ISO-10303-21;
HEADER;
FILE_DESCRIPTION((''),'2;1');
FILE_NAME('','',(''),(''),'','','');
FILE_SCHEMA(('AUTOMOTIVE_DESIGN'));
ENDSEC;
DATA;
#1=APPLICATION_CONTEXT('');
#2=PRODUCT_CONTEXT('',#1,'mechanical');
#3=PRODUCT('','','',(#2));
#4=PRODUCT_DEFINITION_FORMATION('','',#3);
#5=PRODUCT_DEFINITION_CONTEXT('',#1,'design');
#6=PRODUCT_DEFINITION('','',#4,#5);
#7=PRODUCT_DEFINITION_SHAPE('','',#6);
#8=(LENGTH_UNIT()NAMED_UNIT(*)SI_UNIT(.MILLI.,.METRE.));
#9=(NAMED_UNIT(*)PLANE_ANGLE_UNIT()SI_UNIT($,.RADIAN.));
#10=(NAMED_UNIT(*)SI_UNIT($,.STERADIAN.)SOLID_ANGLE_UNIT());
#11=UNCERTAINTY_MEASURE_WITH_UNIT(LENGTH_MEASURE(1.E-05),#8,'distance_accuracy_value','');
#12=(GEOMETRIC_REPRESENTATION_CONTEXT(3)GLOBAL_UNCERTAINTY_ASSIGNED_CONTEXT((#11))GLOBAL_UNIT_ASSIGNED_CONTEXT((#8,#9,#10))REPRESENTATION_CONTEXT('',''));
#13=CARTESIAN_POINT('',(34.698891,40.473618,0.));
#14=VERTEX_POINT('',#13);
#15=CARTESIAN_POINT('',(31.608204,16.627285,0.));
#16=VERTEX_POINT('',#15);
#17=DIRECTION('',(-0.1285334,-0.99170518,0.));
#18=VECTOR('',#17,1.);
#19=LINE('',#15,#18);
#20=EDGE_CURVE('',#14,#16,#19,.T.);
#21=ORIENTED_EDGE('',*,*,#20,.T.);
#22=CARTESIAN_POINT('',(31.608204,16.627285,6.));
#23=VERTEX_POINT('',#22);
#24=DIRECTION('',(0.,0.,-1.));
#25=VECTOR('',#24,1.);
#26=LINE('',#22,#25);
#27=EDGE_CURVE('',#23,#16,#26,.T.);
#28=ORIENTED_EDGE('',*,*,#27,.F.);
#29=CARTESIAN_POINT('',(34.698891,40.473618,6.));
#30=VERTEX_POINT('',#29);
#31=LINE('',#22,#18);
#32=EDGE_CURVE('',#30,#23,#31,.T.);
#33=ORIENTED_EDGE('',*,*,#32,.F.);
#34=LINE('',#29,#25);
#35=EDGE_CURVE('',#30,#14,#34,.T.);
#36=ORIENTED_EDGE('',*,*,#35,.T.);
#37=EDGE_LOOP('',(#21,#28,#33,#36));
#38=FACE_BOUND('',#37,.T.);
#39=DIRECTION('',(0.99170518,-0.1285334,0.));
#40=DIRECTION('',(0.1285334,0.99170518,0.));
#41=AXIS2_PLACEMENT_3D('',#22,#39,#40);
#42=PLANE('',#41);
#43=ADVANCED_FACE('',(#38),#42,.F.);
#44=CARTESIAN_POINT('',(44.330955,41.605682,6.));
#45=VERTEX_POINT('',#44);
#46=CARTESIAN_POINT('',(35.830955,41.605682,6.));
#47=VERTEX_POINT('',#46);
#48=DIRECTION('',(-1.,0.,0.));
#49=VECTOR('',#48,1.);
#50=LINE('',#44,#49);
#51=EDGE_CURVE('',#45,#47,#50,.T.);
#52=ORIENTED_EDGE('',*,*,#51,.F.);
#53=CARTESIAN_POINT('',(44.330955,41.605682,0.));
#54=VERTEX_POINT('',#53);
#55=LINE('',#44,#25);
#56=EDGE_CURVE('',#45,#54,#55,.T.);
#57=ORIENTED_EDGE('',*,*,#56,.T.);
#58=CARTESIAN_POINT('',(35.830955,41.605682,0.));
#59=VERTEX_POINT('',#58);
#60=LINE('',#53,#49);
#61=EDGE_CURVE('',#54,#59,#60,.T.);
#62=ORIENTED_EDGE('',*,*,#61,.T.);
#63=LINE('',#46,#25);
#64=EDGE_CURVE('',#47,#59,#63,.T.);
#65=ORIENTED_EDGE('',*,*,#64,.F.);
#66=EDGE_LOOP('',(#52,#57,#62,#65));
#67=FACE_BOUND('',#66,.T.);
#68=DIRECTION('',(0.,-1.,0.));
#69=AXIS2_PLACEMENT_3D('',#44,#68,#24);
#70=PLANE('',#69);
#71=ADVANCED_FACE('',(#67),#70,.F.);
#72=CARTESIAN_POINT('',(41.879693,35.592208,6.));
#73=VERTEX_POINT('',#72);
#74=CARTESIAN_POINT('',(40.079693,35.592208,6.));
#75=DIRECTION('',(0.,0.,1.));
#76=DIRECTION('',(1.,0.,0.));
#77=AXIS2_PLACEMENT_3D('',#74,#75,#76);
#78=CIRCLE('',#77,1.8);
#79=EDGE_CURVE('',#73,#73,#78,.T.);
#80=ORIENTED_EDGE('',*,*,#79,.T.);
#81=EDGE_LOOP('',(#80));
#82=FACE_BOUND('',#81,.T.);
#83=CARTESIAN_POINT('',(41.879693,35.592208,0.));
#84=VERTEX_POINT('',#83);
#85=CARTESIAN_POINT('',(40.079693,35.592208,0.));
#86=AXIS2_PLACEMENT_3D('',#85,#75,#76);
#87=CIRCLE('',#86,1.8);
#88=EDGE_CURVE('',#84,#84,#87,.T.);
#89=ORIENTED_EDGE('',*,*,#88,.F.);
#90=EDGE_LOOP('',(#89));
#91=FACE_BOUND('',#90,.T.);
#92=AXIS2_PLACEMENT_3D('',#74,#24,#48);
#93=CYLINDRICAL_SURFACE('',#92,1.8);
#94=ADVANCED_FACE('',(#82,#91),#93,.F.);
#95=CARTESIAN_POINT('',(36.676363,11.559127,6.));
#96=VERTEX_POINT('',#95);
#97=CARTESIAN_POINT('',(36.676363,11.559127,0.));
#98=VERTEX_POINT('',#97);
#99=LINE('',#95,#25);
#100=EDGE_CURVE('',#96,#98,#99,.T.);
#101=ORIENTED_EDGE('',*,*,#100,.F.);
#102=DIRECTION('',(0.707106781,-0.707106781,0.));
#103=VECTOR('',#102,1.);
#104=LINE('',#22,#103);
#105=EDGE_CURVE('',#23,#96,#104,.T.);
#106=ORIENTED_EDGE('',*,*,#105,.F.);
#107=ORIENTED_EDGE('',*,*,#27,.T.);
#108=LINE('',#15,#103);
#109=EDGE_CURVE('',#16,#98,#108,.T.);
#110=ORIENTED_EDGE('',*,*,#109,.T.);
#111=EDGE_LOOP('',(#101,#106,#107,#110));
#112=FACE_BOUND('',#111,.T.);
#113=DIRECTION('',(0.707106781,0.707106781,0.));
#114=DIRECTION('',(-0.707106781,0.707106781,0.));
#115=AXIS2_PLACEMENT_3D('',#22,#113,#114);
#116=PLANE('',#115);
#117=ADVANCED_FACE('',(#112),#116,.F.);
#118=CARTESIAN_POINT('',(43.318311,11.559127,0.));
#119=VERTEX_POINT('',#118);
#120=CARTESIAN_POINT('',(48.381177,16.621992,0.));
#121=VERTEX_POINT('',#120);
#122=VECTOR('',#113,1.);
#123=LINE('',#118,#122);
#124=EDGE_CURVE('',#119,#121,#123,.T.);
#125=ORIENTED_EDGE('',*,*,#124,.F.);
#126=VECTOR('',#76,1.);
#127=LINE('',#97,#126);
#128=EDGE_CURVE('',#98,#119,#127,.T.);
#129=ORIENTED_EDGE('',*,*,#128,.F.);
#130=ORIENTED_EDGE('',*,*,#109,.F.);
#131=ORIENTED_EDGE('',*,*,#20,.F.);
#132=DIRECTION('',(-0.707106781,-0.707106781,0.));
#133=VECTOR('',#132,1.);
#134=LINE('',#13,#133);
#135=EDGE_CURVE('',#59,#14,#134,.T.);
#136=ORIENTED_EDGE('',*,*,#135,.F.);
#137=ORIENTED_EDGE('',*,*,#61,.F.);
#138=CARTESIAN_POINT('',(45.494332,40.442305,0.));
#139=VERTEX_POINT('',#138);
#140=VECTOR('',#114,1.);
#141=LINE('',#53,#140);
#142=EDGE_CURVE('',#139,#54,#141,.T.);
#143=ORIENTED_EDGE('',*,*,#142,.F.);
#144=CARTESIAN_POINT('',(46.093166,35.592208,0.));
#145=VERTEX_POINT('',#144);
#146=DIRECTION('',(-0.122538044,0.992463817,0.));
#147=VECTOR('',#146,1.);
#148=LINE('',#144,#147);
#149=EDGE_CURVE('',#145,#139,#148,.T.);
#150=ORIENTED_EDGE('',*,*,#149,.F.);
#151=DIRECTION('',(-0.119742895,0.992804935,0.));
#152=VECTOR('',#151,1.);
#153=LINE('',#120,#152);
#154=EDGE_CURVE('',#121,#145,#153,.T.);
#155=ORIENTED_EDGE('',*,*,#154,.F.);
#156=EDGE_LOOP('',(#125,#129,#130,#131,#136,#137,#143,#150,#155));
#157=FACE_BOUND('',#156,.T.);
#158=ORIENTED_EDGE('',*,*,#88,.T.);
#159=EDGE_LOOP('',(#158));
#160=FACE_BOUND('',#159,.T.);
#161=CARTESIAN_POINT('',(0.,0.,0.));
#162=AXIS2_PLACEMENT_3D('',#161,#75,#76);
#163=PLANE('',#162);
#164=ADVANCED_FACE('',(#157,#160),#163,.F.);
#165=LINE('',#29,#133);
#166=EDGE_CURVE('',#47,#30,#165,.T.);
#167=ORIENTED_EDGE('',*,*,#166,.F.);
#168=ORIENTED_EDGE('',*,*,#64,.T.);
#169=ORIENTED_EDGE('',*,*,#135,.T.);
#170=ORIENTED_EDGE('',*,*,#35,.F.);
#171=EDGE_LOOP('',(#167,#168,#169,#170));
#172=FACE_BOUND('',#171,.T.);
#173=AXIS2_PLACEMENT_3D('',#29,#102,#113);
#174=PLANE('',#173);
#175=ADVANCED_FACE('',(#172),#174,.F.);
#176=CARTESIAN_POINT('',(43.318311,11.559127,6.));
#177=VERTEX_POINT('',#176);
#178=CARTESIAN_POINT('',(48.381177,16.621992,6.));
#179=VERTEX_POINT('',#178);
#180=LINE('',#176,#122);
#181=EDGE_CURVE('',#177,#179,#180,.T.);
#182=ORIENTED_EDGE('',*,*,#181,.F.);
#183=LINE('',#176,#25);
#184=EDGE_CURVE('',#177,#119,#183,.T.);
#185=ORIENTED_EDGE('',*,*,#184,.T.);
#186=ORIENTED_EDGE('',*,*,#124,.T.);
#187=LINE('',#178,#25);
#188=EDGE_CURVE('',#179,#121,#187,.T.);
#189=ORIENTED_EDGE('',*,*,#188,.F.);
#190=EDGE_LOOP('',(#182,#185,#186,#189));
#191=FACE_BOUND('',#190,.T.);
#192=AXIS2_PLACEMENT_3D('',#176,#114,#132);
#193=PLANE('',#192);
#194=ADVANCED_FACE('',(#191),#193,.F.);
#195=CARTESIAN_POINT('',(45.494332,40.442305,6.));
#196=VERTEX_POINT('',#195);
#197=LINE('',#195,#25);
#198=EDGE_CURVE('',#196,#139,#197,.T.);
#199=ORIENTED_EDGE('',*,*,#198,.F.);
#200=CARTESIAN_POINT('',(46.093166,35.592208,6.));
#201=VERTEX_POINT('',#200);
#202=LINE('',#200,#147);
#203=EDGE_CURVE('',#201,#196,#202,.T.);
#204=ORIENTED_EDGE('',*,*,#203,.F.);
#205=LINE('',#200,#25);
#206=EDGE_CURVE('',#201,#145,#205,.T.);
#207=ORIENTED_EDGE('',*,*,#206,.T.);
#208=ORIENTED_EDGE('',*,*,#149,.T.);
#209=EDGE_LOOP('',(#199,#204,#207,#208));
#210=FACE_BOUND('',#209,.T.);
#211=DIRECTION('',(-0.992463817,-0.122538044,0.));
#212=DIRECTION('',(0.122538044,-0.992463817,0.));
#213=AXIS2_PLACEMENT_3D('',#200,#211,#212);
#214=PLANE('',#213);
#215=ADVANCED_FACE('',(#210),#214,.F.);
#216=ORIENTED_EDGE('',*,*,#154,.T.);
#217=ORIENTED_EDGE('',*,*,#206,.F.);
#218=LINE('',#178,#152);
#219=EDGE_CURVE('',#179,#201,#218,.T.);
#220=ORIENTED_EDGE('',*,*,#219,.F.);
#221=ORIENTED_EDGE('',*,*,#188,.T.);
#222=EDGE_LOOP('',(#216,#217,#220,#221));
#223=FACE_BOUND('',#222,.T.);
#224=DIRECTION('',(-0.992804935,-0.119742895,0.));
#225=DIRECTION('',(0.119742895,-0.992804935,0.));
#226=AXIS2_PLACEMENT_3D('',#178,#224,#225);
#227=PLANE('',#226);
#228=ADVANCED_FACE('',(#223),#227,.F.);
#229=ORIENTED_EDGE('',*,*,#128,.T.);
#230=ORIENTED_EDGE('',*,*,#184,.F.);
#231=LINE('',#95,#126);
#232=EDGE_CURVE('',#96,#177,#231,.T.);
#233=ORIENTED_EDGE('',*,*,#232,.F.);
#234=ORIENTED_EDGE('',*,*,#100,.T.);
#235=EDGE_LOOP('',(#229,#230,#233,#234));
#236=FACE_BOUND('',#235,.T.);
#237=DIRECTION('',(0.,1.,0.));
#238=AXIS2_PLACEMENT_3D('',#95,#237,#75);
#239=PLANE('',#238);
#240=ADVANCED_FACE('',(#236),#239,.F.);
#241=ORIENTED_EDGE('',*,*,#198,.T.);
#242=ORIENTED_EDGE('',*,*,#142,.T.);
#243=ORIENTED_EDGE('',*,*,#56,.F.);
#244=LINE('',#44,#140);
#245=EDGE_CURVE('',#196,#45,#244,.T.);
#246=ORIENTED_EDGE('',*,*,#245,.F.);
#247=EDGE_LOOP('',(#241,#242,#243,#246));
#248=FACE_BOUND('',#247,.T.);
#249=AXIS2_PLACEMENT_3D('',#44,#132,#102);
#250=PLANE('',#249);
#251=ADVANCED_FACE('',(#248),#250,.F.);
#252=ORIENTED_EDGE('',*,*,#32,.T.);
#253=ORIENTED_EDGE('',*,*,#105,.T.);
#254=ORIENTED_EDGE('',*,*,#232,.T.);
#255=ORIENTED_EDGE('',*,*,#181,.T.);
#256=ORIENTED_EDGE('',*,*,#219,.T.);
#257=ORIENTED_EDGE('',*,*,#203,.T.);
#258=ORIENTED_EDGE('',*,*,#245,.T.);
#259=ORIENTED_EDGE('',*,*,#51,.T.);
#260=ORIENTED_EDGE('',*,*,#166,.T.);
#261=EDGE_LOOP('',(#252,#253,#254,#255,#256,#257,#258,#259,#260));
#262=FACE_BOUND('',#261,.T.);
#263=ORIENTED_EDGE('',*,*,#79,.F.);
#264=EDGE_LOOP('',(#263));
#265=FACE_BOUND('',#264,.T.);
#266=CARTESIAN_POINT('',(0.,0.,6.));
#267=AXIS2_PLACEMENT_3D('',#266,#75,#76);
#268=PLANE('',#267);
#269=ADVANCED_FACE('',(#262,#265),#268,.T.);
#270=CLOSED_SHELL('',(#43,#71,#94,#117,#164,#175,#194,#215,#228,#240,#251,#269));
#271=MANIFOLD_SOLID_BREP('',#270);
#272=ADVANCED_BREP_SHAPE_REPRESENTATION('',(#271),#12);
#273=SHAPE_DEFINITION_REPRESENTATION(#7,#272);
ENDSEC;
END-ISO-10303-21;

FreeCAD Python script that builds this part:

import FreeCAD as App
import Part
import Sketcher
from FreeCAD import Vector
Q = App.Units.Quantity

doc = App.newDocument("Part")
params = doc.addObject("Spreadsheet::Sheet", "Params")
for row, (alias, value) in enumerate([
    ("sketch1_diameter", "3.6 mm"),
    ("sketch1_width", "8.5 mm"),
    ("pad1_length", "6 mm"),
], start=1):
    params.set(f"A{row}", alias)
    params.set(f"B{row}", "=" + value)
    params.setAlias(f"B{row}", alias)

body = doc.addObject("PartDesign::Body", "Body")

# Sketch on XY plane
sketch1 = doc.addObject("Sketcher::SketchObject", "Sketch")
body.addObject(sketch1)
sketch1.AttachmentSupport = (doc.XY_Plane, [""])
sketch1.MapMode = "FlatFace"
sketch1.addGeometry([
    Part.LineSegment(Vector(36.7, 11.6, 0), Vector(43.3, 11.6, 0)),  # 0
    Part.LineSegment(Vector(43.3, 11.6, 0), Vector(48.4, 16.6, 0)),  # 1
    Part.LineSegment(Vector(48.4, 16.6, 0), Vector(46.1, 35.6, 0)),  # 2
    Part.LineSegment(Vector(46.1, 35.6, 0), Vector(45.5, 40.4, 0)),  # 3
    Part.LineSegment(Vector(45.5, 40.4, 0), Vector(44.3, 41.6, 0)),  # 4
    Part.LineSegment(Vector(44.3, 41.6, 0), Vector(35.8, 41.6, 0)),  # 5
    Part.LineSegment(Vector(35.8, 41.6, 0), Vector(34.7, 40.5, 0)),  # 6
    Part.LineSegment(Vector(34.7, 40.5, 0), Vector(31.6, 16.6, 0)),  # 7
    Part.LineSegment(Vector(31.6, 16.6, 0), Vector(36.7, 11.6, 0)),  # 8
    Part.Circle(Vector(40.1, 35.6, 0), Vector(0, 0, 1), 1.8),  # 9
], False)
sketch1.addConstraint([
    Sketcher.Constraint("Coincident", 0, 2, 1, 1),
    Sketcher.Constraint("Coincident", 1, 2, 2, 1),
    Sketcher.Constraint("Coincident", 2, 2, 3, 1),
    Sketcher.Constraint("Coincident", 3, 2, 4, 1),
    Sketcher.Constraint("Coincident", 4, 2, 5, 1),
    Sketcher.Constraint("Coincident", 5, 2, 6, 1),
    Sketcher.Constraint("Coincident", 6, 2, 7, 1),
    Sketcher.Constraint("Coincident", 7, 2, 8, 1),
    Sketcher.Constraint("Coincident", 8, 2, 0, 1),
    Sketcher.Constraint("Horizontal", 0),
    Sketcher.Constraint("Horizontal", 5),
    Sketcher.Constraint("Perpendicular", 1, 4),
    Sketcher.Constraint("Perpendicular", 4, 6),
    Sketcher.Constraint("Perpendicular", 6, 8),
    Sketcher.Constraint("Horizontal", 9, 3, 2, 2),
    Sketcher.Constraint("Diameter", 9, Q("3.6 mm")),
    Sketcher.Constraint("Angle", 1, Q("45 deg")),
    Sketcher.Constraint("DistanceX", 5, 2, 5, 1, Q("8.5 mm")),
    Sketcher.Constraint("DistanceX", 0, 1, 0, 2, Q("6.641949 mm")),
    Sketcher.Constraint("DistanceX", 6, 2, 9, 3, Q("5.380801 mm")),
    Sketcher.Constraint("Distance", 6, Q("1.600979 mm")),
    Sketcher.Constraint("Distance", 7, Q("24.045789 mm")),
    Sketcher.Constraint("DistanceY", -1, 1, 9, 3, Q("35.592208 mm")),
    Sketcher.Constraint("DistanceX", -1, 1, 0, 2, Q("43.318311 mm")),
    Sketcher.Constraint("DistanceX", -1, 1, 3, 2, Q("45.494332 mm")),
    Sketcher.Constraint("DistanceY", -1, 1, 4, 2, Q("41.605682 mm")),
    Sketcher.Constraint("DistanceX", -1, 1, 6, 2, Q("34.698891 mm")),
    Sketcher.Constraint("DistanceY", 0, 2, 9, 3, Q("24.033081 mm")),
    Sketcher.Constraint("DistanceX", 2, 2, 1, 2, Q("2.288011 mm")),
    Sketcher.Constraint("DistanceX", 4, 2, 2, 2, Q("1.762211 mm")),
])
sketch1.setExpression("Constraints[15]", "Params.sketch1_diameter")
sketch1.setExpression("Constraints[17]", "Params.sketch1_width")
pad1 = doc.addObject("PartDesign::Pad", "Pad")
body.addObject(pad1)
pad1.Profile = sketch1
pad1.setExpression("Length", "Params.pad1_length")

doc.recompute()
